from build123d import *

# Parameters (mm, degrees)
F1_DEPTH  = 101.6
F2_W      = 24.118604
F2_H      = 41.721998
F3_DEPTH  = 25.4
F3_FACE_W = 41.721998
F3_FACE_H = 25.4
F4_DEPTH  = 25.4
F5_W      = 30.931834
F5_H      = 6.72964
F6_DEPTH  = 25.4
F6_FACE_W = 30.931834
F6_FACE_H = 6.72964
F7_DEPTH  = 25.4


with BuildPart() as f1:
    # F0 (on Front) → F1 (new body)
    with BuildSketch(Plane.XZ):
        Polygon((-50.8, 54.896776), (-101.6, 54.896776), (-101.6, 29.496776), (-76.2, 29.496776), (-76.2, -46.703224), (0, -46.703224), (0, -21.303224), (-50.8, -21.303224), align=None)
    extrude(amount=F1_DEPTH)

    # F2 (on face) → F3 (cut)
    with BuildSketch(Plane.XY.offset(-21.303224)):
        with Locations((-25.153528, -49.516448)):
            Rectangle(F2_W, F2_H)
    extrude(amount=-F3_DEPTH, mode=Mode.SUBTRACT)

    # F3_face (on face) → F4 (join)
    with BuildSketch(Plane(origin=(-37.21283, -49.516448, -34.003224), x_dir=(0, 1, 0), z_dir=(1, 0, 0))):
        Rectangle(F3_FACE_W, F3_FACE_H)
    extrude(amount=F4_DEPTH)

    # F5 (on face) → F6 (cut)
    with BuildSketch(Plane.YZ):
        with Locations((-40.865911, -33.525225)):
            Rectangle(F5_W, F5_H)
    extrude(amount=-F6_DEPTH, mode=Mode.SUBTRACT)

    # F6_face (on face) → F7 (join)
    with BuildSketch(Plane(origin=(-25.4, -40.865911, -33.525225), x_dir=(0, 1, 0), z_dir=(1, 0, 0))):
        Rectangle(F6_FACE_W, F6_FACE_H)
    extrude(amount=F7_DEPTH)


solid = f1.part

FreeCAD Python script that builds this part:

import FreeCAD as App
import Part
import Sketcher
Q = App.Units.Quantity

doc = App.newDocument("Part")
params = doc.addObject("Spreadsheet::Sheet", "Params")
for row, (alias, value) in enumerate([
    ("sketch1_width", "2 in"),
    ("sketch1_width2", "1 in"),
    ("pad1_length", "4 in"),
    ("pocket1_length", "1 in"),
    ("sketch3_height", "1 in"),
    ("pad2_length", "1 in"),
    ("pocket2_length", "1 in"),
    ("pad3_length", "1 in"),
], start=1):
    params.set(f"A{row}", alias)
    params.set(f"B{row}", "=" + value)
    params.setAlias(f"B{row}", alias)

body = doc.addObject("PartDesign::Body", "Body")

sketch1 = body.newObject("Sketcher::SketchObject", "Sketch")
sketch1.AttachmentSupport = (doc.getObject("XZ_Plane"), [""])
sketch1.MapMode = "FlatFace"
sketch1.addGeometry([
    Part.LineSegment(App.Vector(-50.8, 54.896776, 0), App.Vector(-101.6, 54.896776, 0)),
    Part.LineSegment(App.Vector(-101.6, 54.896776, 0), App.Vector(-101.6, 29.496776, 0)),
    Part.LineSegment(App.Vector(-101.6, 29.496776, 0), App.Vector(-76.2, 29.496776, 0)),
    Part.LineSegment(App.Vector(-76.2, 29.496776, 0), App.Vector(-76.2, -46.703224, 0)),
    Part.LineSegment(App.Vector(-76.2, -46.703224, 0), App.Vector(0, -46.703224, 0)),
    Part.LineSegment(App.Vector(0, -46.703224, 0), App.Vector(0, -21.303224, 0)),
    Part.LineSegment(App.Vector(0, -21.303224, 0), App.Vector(-50.8, -21.303224, 0)),
    Part.LineSegment(App.Vector(-50.8, -21.303224, 0), App.Vector(-50.8, 54.896776, 0)),
], False)
sketch1.addConstraint([
    Sketcher.Constraint("Coincident", 0, 2, 1, 1),
    Sketcher.Constraint("Coincident", 1, 2, 2, 1),
    Sketcher.Constraint("Coincident", 2, 2, 3, 1),
    Sketcher.Constraint("Coincident", 3, 2, 4, 1),
    Sketcher.Constraint("Coincident", 4, 2, 5, 1),
    Sketcher.Constraint("Coincident", 5, 2, 6, 1),
    Sketcher.Constraint("Coincident", 6, 2, 7, 1),
    Sketcher.Constraint("Coincident", 7, 2, 0, 1),
    Sketcher.Constraint("Horizontal", 0),
    Sketcher.Constraint("Vertical", 1),
    Sketcher.Constraint("Horizontal", 2),
    Sketcher.Constraint("Vertical", 3),
    Sketcher.Constraint("Horizontal", 4),
    Sketcher.Constraint("Vertical", 5),
    Sketcher.Constraint("Horizontal", 6),
    Sketcher.Constraint("Vertical", 7),
    Sketcher.Constraint("PointOnObject", 4, 2, -2),
    Sketcher.Constraint("Equal", 0, 6),
    Sketcher.Constraint("Equal", 2, 1),
    Sketcher.Constraint("Equal", 4, 3),
    Sketcher.Constraint("Equal", 1, 5),
    Sketcher.Constraint("DistanceX", 0, 2, 0, 1, Q("2 in")),
    Sketcher.Constraint("DistanceX", 2, 1, 2, 2, Q("1 in")),
    Sketcher.Constraint("DistanceY", -1, 1, 0, 2, Q("54.896776 mm")),
])
sketch1.setExpression("Constraints[21]", "Params.sketch1_width")
sketch1.setExpression("Constraints[22]", "Params.sketch1_width2")
pad1 = body.newObject("PartDesign::Pad", "Pad")
pad1.Profile = sketch1
pad1.setExpression("Length", "Params.pad1_length")

sketch2 = body.newObject("Sketcher::SketchObject", "Sketch001")
sketch2.AttachmentSupport = (doc.getObject("XY_Plane"), [""])
sketch2.MapMode = "FlatFace"
sketch2.AttachmentOffset = App.Placement(App.Vector(0, 0, -21.303224), App.Rotation())
sketch2.addGeometry([
    Part.LineSegment(App.Vector(-37.21283, -28.655449, 0), App.Vector(-37.21283, -70.377447, 0)),
    Part.LineSegment(App.Vector(-37.21283, -70.377447, 0), App.Vector(-13.094226, -70.377447, 0)),
    Part.LineSegment(App.Vector(-13.094226, -70.377447, 0), App.Vector(-13.094226, -28.655449, 0)),
    Part.LineSegment(App.Vector(-13.094226, -28.655449, 0), App.Vector(-37.21283, -28.655449, 0)),
], False)
sketch2.addConstraint([
    Sketcher.Constraint("Coincident", 0, 2, 1, 1),
    Sketcher.Constraint("Coincident", 1, 2, 2, 1),
    Sketcher.Constraint("Coincident", 2, 2, 3, 1),
    Sketcher.Constraint("Coincident", 3, 2, 0, 1),
    Sketcher.Constraint("Vertical", 0),
    Sketcher.Constraint("Horizontal", 1),
    Sketcher.Constraint("Vertical", 2),
    Sketcher.Constraint("Horizontal", 3),
    Sketcher.Constraint("DistanceX", 1, 1, 1, 2, Q("24.118604 mm")),
    Sketcher.Constraint("DistanceY", 0, 2, 0, 1, Q("41.721998 mm")),
    Sketcher.Constraint("DistanceX", 0, 2, -1, 1, Q("37.21283 mm")),
    Sketcher.Constraint("DistanceY", 2, 2, -1, 1, Q("28.655449 mm")),
])
pocket1 = body.newObject("PartDesign::Pocket", "Pocket")
pocket1.Profile = sketch2
pocket1.setExpression("Length", "Params.pocket1_length")

sketch3 = body.newObject("Sketcher::SketchObject", "Sketch002")
sketch3.AttachmentSupport = (doc.getObject("YZ_Plane"), [""])
sketch3.MapMode = "FlatFace"
sketch3.AttachmentOffset = App.Placement(App.Vector(0, 0, -37.21283), App.Rotation())
sketch3.addGeometry([
    Part.LineSegment(App.Vector(-70.377447, -21.303224, 0), App.Vector(-70.377447, -46.703224, 0)),
    Part.LineSegment(App.Vector(-70.377447, -46.703224, 0), App.Vector(-28.655449, -46.703224, 0)),
    Part.LineSegment(App.Vector(-28.655449, -46.703224, 0), App.Vector(-28.655449, -21.303224, 0)),
    Part.LineSegment(App.Vector(-28.655449, -21.303224, 0), App.Vector(-70.377447, -21.303224, 0)),
], False)
sketch3.addConstraint([
    Sketcher.Constraint("Coincident", 0, 2, 1, 1),
    Sketcher.Constraint("Coincident", 1, 2, 2, 1),
    Sketcher.Constraint("Coincident", 2, 2, 3, 1),
    Sketcher.Constraint("Coincident", 3, 2, 0, 1),
    Sketcher.Constraint("Vertical", 0),
    Sketcher.Constraint("Horizontal", 1),
    Sketcher.Constraint("Vertical", 2),
    Sketcher.Constraint("Horizontal", 3),
    Sketcher.Constraint("DistanceY", 0, 2, 0, 1, Q("1 in")),
    Sketcher.Constraint("DistanceX", 1, 1, 1, 2, Q("41.721998 mm")),
    Sketcher.Constraint("DistanceX", 1, 2, -1, 1, Q("28.655449 mm")),
    Sketcher.Constraint("DistanceY", 0, 2, -1, 1, Q("46.703224 mm")),
])
sketch3.setExpression("Constraints[8]", "Params.sketch3_height")
pad2 = body.newObject("PartDesign::Pad", "Pad001")
pad2.Profile = sketch3
pad2.setExpression("Length", "Params.pad2_length")

sketch4 = body.newObject("Sketcher::SketchObject", "Sketch003")
sketch4.AttachmentSupport = (doc.getObject("YZ_Plane"), [""])
sketch4.MapMode = "FlatFace"
sketch4.addGeometry([
    Part.LineSegment(App.Vector(-56.331828, -30.160405, 0), App.Vector(-56.331828, -36.890045, 0)),
    Part.LineSegment(App.Vector(-56.331828, -36.890045, 0), App.Vector(-25.399994, -36.890045, 0)),
    Part.LineSegment(App.Vector(-25.399994, -36.890045, 0), App.Vector(-25.399994, -30.160405, 0)),
    Part.LineSegment(App.Vector(-25.399994, -30.160405, 0), App.Vector(-56.331828, -30.160405, 0)),
], False)
sketch4.addConstraint([
    Sketcher.Constraint("Coincident", 0, 2, 1, 1),
    Sketcher.Constraint("Coincident", 1, 2, 2, 1),
    Sketcher.Constraint("Coincident", 2, 2, 3, 1),
    Sketcher.Constraint("Coincident", 3, 2, 0, 1),
    Sketcher.Constraint("Vertical", 0),
    Sketcher.Constraint("Horizontal", 1),
    Sketcher.Constraint("Vertical", 2),
    Sketcher.Constraint("Horizontal", 3),
    Sketcher.Constraint("DistanceY", 0, 2, 0, 1, Q("6.72964 mm")),
    Sketcher.Constraint("DistanceX", 1, 1, 1, 2, Q("30.931834 mm")),
    Sketcher.Constraint("DistanceX", 0, 2, -1, 1, Q("56.331828 mm")),
    Sketcher.Constraint("DistanceY", 0, 2, -1, 1, Q("36.890045 mm")),
])
pocket2 = body.newObject("PartDesign::Pocket", "Pocket001")
pocket2.Profile = sketch4
pocket2.setExpression("Length", "Params.pocket2_length")

sketch5 = body.newObject("Sketcher::SketchObject", "Sketch004")
sketch5.AttachmentSupport = (doc.getObject("YZ_Plane"), [""])
sketch5.MapMode = "FlatFace"
sketch5.AttachmentOffset = App.Placement(App.Vector(0, 0, -1 * 25.4), App.Rotation())
sketch5.addGeometry([
    Part.LineSegment(App.Vector(-56.331828, -30.160405, 0), App.Vector(-56.331828, -36.890045, 0)),
    Part.LineSegment(App.Vector(-56.331828, -36.890045, 0), App.Vector(-25.399994, -36.890045, 0)),
    Part.LineSegment(App.Vector(-25.399994, -36.890045, 0), App.Vector(-25.399994, -30.160405, 0)),
    Part.LineSegment(App.Vector(-25.399994, -30.160405, 0), App.Vector(-56.331828, -30.160405, 0)),
], False)
sketch5.addConstraint([
    Sketcher.Constraint("Coincident", 0, 2, 1, 1),
    Sketcher.Constraint("Coincident", 1, 2, 2, 1),
    Sketcher.Constraint("Coincident", 2, 2, 3, 1),
    Sketcher.Constraint("Coincident", 3, 2, 0, 1),
    Sketcher.Constraint("Vertical", 0),
    Sketcher.Constraint("Horizontal", 1),
    Sketcher.Constraint("Vertical", 2),
    Sketcher.Constraint("Horizontal", 3),
    Sketcher.Constraint("DistanceY", 0, 2, 0, 1, Q("6.72964 mm")),
    Sketcher.Constraint("DistanceX", 1, 1, 1, 2, Q("30.931834 mm")),
    Sketcher.Constraint("DistanceX", 0, 2, -1, 1, Q("56.331828 mm")),
    Sketcher.Constraint("DistanceY", 0, 2, -1, 1, Q("36.890045 mm")),
])
pad3 = body.newObject("PartDesign::Pad", "Pad002")
pad3.Profile = sketch5
pad3.setExpression("Length", "Params.pad3_length")

doc.recompute()
